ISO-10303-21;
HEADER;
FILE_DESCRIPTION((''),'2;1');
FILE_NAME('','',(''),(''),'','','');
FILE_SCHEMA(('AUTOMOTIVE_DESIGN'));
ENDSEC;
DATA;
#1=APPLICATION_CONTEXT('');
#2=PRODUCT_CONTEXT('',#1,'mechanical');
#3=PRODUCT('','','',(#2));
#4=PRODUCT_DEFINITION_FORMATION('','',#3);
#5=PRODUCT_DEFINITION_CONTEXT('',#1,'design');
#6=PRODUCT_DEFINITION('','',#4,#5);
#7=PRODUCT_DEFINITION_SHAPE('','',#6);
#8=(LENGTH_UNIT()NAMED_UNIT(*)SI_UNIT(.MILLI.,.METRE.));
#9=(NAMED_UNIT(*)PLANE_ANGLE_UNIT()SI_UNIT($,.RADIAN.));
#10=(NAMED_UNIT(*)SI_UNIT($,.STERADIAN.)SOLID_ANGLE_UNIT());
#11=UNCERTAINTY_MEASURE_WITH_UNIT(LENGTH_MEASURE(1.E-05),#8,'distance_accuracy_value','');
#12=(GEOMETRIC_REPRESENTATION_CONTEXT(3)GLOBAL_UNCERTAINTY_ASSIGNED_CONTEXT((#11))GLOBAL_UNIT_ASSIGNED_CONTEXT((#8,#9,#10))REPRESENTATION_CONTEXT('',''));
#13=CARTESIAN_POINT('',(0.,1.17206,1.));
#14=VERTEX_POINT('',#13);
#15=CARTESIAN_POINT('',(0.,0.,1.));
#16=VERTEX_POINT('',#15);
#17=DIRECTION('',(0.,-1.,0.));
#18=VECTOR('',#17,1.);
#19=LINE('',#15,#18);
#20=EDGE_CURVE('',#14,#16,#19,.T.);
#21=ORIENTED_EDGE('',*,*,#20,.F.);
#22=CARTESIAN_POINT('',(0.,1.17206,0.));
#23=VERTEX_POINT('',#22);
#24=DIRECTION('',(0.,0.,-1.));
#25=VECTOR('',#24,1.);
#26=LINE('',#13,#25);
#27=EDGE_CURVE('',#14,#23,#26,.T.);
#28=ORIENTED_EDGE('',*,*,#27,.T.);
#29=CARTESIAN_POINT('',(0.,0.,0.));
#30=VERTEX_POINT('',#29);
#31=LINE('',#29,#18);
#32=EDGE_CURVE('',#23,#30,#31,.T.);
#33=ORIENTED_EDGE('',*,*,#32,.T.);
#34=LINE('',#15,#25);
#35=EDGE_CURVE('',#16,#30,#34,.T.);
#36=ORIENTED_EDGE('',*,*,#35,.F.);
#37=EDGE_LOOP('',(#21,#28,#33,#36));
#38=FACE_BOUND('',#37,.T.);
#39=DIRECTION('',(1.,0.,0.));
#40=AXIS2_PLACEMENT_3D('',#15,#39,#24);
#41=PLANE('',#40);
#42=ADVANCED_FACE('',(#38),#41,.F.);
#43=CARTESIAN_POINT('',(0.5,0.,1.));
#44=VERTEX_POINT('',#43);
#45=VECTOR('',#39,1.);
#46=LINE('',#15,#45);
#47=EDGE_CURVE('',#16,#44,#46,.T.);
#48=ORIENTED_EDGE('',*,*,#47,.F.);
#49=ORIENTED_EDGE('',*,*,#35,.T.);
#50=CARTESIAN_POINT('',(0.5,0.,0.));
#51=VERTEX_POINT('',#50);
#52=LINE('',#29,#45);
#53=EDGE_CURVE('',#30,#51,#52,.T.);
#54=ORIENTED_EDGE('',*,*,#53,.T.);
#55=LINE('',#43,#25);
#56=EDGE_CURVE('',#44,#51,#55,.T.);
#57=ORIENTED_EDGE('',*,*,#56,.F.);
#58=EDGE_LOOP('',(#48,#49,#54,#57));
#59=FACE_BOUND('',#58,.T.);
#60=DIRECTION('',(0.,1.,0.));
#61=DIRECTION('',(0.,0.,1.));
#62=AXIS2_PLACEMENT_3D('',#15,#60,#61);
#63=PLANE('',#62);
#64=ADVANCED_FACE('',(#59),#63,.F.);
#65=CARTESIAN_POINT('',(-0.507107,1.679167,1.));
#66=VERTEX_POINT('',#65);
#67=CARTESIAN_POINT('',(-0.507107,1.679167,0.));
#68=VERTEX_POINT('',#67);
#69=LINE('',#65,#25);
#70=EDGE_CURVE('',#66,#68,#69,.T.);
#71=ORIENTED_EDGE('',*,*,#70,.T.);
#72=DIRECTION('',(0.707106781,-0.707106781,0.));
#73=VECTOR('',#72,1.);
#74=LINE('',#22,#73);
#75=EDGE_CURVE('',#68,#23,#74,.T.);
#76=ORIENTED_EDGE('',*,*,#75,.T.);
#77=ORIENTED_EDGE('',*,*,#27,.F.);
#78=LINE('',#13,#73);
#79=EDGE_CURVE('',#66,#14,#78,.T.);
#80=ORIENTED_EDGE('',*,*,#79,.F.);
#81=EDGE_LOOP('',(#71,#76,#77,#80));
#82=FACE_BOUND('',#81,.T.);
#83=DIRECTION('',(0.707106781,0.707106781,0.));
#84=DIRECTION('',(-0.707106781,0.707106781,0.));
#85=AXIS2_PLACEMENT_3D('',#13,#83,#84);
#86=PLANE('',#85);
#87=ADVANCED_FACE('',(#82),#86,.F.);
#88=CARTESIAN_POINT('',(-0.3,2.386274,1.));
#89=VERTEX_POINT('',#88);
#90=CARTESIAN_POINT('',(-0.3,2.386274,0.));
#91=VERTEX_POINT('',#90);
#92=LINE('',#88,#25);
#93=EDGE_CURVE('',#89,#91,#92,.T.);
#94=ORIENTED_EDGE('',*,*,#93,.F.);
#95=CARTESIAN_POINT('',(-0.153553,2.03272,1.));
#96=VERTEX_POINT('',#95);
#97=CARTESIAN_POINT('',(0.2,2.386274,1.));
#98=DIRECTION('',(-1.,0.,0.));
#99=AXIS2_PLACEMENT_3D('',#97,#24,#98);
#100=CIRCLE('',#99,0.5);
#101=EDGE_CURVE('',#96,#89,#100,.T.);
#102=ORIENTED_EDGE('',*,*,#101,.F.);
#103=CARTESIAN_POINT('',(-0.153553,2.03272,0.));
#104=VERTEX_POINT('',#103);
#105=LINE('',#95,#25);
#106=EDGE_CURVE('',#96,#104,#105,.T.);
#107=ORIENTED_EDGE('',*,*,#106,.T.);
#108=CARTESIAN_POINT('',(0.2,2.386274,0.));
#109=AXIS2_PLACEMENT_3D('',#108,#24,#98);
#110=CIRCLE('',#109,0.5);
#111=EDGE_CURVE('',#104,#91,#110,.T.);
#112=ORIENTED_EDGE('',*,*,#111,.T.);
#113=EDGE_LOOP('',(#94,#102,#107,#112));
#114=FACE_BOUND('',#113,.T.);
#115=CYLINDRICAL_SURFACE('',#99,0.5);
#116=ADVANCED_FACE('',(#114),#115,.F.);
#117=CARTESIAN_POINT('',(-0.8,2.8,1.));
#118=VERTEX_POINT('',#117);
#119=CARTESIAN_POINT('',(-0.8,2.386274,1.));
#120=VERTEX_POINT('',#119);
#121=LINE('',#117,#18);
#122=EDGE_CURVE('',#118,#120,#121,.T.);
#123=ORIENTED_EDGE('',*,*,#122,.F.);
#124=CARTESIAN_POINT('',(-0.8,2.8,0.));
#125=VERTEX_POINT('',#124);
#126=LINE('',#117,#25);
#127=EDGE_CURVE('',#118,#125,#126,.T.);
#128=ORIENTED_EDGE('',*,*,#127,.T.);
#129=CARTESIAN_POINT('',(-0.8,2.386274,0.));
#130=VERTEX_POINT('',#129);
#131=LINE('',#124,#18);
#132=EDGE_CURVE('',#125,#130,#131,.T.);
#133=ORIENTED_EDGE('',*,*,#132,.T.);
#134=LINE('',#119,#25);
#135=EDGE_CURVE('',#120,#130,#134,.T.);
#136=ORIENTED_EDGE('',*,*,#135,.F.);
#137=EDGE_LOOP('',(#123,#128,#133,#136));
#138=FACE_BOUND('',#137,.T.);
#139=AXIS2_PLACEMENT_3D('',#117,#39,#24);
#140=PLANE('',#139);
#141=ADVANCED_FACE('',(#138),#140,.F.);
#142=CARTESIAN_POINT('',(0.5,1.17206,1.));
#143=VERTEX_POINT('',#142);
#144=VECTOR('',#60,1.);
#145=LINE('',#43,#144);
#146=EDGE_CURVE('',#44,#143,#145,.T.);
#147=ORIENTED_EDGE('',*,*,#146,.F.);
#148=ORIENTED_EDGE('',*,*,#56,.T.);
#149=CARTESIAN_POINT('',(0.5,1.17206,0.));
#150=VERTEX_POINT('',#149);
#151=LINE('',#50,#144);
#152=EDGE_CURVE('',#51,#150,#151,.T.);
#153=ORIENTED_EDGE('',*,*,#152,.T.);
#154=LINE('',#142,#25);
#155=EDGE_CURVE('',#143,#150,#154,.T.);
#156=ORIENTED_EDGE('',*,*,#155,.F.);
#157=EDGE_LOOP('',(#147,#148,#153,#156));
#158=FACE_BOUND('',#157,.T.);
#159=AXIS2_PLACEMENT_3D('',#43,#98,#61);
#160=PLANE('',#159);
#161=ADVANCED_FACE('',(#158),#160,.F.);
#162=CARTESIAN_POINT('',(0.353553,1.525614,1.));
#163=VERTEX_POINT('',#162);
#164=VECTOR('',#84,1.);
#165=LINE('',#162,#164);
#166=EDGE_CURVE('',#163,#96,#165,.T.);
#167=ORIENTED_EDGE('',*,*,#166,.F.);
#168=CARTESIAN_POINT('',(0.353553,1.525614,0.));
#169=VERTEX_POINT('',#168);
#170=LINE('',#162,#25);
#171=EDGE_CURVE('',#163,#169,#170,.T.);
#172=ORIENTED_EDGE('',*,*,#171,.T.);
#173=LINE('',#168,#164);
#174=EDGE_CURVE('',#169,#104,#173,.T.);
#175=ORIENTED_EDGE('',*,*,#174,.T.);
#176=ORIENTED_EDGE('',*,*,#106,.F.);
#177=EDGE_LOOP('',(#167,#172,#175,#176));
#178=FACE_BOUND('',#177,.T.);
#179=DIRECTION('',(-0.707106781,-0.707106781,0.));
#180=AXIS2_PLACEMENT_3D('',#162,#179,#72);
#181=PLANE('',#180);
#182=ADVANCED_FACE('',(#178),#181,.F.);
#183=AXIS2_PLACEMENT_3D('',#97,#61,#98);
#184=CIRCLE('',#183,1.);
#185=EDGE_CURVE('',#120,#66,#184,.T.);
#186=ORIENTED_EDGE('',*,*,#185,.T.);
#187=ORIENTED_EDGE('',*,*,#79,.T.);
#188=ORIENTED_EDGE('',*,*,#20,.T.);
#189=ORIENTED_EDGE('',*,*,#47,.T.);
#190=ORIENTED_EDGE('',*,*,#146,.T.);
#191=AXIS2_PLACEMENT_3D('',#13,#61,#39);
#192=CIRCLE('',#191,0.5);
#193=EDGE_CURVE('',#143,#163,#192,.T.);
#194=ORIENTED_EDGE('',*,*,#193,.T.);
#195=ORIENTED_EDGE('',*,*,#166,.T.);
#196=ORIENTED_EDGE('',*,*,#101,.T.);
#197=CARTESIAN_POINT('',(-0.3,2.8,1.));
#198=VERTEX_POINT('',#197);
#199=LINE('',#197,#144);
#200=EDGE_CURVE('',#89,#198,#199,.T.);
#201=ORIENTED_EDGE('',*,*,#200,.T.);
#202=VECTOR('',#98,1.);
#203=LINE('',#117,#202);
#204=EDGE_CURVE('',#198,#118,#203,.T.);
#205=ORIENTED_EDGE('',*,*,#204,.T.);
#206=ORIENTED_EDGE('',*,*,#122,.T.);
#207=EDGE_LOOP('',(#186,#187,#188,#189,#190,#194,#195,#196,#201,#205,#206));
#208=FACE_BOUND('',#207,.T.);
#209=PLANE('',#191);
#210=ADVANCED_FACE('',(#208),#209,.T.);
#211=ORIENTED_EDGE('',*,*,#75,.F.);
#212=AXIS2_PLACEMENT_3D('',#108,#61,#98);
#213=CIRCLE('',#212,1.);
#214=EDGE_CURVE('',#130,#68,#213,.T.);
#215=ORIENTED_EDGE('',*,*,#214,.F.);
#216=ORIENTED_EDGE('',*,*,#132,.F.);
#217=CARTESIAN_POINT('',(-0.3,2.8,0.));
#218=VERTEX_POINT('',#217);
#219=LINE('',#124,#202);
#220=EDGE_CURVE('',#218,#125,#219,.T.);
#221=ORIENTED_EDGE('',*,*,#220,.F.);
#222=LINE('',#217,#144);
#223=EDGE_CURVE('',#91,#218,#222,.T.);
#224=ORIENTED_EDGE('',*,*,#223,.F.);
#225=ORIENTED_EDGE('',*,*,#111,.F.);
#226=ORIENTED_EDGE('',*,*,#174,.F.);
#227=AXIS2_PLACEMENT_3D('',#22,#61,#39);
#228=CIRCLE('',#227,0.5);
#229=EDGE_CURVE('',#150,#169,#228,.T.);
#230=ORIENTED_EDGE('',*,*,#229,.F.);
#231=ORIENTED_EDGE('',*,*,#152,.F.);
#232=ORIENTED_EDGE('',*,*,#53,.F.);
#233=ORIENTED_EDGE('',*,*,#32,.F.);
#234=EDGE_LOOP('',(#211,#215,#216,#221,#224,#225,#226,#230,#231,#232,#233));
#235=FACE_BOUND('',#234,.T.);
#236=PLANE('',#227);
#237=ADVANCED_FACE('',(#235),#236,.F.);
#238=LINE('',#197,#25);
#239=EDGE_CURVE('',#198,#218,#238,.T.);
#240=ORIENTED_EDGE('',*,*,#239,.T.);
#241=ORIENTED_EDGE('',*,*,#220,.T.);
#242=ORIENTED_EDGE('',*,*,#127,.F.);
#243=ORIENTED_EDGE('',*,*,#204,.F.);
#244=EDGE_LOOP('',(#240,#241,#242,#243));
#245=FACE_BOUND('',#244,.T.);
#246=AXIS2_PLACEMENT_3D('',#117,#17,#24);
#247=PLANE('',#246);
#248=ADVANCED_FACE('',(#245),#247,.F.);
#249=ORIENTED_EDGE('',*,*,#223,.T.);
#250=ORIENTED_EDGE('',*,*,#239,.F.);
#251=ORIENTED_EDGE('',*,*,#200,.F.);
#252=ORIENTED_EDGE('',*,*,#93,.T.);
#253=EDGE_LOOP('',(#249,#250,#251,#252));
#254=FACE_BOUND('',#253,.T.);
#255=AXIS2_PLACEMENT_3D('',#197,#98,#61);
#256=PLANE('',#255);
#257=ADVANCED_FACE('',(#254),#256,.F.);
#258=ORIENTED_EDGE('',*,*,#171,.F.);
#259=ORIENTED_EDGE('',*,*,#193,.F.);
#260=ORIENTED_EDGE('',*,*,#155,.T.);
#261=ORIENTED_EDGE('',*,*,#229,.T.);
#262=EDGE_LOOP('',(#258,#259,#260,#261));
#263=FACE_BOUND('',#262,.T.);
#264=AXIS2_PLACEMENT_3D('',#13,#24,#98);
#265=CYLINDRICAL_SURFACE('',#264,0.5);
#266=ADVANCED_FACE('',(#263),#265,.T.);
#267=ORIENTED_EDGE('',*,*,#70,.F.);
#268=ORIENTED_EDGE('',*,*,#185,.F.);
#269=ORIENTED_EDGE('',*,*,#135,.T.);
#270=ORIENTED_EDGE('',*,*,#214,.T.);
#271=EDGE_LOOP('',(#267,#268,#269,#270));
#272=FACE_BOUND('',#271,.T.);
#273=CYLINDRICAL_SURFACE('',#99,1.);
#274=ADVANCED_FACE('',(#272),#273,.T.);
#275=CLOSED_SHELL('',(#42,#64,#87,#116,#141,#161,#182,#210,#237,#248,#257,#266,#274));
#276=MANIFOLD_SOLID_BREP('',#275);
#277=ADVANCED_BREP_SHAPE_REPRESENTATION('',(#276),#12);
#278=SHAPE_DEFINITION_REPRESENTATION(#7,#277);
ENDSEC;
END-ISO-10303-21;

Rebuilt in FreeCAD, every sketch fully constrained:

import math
import FreeCAD as App
import Part
import Sketcher
Q = App.Units.Quantity

doc = App.newDocument("Part")
body = doc.addObject("PartDesign::Body", "Body")

# Sketch on XY plane
sketch1 = body.newObject("Sketcher::SketchObject", "Sketch")
sketch1.AttachmentSupport = (doc.getObject("XY_Plane"), [""])
sketch1.MapMode = "FlatFace"
sketch1.addGeometry(Part.LineSegment(App.Vector(0, 1.17206, 0), App.Vector(0, 0, 0)), False)
sketch1.addGeometry(Part.LineSegment(App.Vector(0, 0, 0), App.Vector(0.5, 0, 0)), False)
sketch1.addGeometry(Part.LineSegment(App.Vector(0.5, 0, 0), App.Vector(0.5, 1.17206, 0)), False)
sketch1.addGeometry(Part.ArcOfCircle(Part.Circle(App.Vector(0, 1.17206, 0), App.Vector(0, 0, 1), 0.5), math.radians(0), math.radians(45)), False)
sketch1.addGeometry(Part.LineSegment(App.Vector(0.353553, 1.525614, 0), App.Vector(-0.153553, 2.03272, 0)), False)
sketch1.addGeometry(Part.ArcOfCircle(Part.Circle(App.Vector(0.2, 2.386274, 0), App.Vector(0, 0, 1), 0.5), math.radians(-180), math.radians(-135)), False)
sketch1.addGeometry(Part.LineSegment(App.Vector(-0.3, 2.386274, 0), App.Vector(-0.3, 2.8, 0)), False)
sketch1.addGeometry(Part.LineSegment(App.Vector(-0.3, 2.8, 0), App.Vector(-0.8, 2.8, 0)), False)
sketch1.addGeometry(Part.LineSegment(App.Vector(-0.8, 2.8, 0), App.Vector(-0.8, 2.386274, 0)), False)
sketch1.addGeometry(Part.ArcOfCircle(Part.Circle(App.Vector(0.2, 2.386274, 0), App.Vector(0, 0, 1), 1), math.radians(180), math.radians(225)), False)
sketch1.addGeometry(Part.LineSegment(App.Vector(-0.507107, 1.679167, 0), App.Vector(0, 1.17206, 0)), False)
sketch1.addConstraint(Sketcher.Constraint("Coincident", 0, 2, 1, 1))
sketch1.addConstraint(Sketcher.Constraint("Coincident", 1, 2, 2, 1))
sketch1.addConstraint(Sketcher.Constraint("Tangent", 2, 2, 3, 1))
sketch1.addConstraint(Sketcher.Constraint("Tangent", 3, 2, 4, 1))
sketch1.addConstraint(Sketcher.Constraint("Tangent", 4, 2, 5, 2))
sketch1.addConstraint(Sketcher.Constraint("Tangent", 5, 1, 6, 1))
sketch1.addConstraint(Sketcher.Constraint("Coincident", 6, 2, 7, 1))
sketch1.addConstraint(Sketcher.Constraint("Coincident", 7, 2, 8, 1))
sketch1.addConstraint(Sketcher.Constraint("Tangent", 8, 2, 9, 1))
sketch1.addConstraint(Sketcher.Constraint("Tangent", 9, 2, 10, 1))
sketch1.addConstraint(Sketcher.Constraint("Coincident", 10, 2, 0, 1))
sketch1.addConstraint(Sketcher.Constraint("Vertical", 0))
sketch1.addConstraint(Sketcher.Constraint("Horizontal", 1))
sketch1.addConstraint(Sketcher.Constraint("Vertical", 2))
sketch1.addConstraint(Sketcher.Constraint("Vertical", 6))
sketch1.addConstraint(Sketcher.Constraint("Horizontal", 7))
sketch1.addConstraint(Sketcher.Constraint("Vertical", 8))
sketch1.addConstraint(Sketcher.Constraint("Coincident", 0, 2, -1, 1))
sketch1.addConstraint(Sketcher.Constraint("Coincident", 9, 3, 5, 3))
sketch1.addConstraint(Sketcher.Constraint("Coincident", 10, 2, 3, 3))
sketch1.addConstraint(Sketcher.Constraint("Equal", 3, 5))
sketch1.addConstraint(Sketcher.Constraint("Parallel", 4, 10))
sketch1.addConstraint(Sketcher.Constraint("Radius", 9, Q("1 mm")))
sketch1.addConstraint(Sketcher.Constraint("Angle", 4, Q("135 deg")))
sketch1.addConstraint(Sketcher.Constraint("DistanceX", -1, 1, 5, 3, Q("0.2 mm")))
sketch1.addConstraint(Sketcher.Constraint("DistanceY", -1, 1, 6, 2, Q("2.8 mm")))
sketch1.addConstraint(Sketcher.Constraint("DistanceY", 0, 2, 0, 1, Q("1.17206 mm")))
pad1 = body.newObject("PartDesign::Pad", "Pad")
pad1.Profile = sketch1
pad1.Length = 1

doc.recompute()
